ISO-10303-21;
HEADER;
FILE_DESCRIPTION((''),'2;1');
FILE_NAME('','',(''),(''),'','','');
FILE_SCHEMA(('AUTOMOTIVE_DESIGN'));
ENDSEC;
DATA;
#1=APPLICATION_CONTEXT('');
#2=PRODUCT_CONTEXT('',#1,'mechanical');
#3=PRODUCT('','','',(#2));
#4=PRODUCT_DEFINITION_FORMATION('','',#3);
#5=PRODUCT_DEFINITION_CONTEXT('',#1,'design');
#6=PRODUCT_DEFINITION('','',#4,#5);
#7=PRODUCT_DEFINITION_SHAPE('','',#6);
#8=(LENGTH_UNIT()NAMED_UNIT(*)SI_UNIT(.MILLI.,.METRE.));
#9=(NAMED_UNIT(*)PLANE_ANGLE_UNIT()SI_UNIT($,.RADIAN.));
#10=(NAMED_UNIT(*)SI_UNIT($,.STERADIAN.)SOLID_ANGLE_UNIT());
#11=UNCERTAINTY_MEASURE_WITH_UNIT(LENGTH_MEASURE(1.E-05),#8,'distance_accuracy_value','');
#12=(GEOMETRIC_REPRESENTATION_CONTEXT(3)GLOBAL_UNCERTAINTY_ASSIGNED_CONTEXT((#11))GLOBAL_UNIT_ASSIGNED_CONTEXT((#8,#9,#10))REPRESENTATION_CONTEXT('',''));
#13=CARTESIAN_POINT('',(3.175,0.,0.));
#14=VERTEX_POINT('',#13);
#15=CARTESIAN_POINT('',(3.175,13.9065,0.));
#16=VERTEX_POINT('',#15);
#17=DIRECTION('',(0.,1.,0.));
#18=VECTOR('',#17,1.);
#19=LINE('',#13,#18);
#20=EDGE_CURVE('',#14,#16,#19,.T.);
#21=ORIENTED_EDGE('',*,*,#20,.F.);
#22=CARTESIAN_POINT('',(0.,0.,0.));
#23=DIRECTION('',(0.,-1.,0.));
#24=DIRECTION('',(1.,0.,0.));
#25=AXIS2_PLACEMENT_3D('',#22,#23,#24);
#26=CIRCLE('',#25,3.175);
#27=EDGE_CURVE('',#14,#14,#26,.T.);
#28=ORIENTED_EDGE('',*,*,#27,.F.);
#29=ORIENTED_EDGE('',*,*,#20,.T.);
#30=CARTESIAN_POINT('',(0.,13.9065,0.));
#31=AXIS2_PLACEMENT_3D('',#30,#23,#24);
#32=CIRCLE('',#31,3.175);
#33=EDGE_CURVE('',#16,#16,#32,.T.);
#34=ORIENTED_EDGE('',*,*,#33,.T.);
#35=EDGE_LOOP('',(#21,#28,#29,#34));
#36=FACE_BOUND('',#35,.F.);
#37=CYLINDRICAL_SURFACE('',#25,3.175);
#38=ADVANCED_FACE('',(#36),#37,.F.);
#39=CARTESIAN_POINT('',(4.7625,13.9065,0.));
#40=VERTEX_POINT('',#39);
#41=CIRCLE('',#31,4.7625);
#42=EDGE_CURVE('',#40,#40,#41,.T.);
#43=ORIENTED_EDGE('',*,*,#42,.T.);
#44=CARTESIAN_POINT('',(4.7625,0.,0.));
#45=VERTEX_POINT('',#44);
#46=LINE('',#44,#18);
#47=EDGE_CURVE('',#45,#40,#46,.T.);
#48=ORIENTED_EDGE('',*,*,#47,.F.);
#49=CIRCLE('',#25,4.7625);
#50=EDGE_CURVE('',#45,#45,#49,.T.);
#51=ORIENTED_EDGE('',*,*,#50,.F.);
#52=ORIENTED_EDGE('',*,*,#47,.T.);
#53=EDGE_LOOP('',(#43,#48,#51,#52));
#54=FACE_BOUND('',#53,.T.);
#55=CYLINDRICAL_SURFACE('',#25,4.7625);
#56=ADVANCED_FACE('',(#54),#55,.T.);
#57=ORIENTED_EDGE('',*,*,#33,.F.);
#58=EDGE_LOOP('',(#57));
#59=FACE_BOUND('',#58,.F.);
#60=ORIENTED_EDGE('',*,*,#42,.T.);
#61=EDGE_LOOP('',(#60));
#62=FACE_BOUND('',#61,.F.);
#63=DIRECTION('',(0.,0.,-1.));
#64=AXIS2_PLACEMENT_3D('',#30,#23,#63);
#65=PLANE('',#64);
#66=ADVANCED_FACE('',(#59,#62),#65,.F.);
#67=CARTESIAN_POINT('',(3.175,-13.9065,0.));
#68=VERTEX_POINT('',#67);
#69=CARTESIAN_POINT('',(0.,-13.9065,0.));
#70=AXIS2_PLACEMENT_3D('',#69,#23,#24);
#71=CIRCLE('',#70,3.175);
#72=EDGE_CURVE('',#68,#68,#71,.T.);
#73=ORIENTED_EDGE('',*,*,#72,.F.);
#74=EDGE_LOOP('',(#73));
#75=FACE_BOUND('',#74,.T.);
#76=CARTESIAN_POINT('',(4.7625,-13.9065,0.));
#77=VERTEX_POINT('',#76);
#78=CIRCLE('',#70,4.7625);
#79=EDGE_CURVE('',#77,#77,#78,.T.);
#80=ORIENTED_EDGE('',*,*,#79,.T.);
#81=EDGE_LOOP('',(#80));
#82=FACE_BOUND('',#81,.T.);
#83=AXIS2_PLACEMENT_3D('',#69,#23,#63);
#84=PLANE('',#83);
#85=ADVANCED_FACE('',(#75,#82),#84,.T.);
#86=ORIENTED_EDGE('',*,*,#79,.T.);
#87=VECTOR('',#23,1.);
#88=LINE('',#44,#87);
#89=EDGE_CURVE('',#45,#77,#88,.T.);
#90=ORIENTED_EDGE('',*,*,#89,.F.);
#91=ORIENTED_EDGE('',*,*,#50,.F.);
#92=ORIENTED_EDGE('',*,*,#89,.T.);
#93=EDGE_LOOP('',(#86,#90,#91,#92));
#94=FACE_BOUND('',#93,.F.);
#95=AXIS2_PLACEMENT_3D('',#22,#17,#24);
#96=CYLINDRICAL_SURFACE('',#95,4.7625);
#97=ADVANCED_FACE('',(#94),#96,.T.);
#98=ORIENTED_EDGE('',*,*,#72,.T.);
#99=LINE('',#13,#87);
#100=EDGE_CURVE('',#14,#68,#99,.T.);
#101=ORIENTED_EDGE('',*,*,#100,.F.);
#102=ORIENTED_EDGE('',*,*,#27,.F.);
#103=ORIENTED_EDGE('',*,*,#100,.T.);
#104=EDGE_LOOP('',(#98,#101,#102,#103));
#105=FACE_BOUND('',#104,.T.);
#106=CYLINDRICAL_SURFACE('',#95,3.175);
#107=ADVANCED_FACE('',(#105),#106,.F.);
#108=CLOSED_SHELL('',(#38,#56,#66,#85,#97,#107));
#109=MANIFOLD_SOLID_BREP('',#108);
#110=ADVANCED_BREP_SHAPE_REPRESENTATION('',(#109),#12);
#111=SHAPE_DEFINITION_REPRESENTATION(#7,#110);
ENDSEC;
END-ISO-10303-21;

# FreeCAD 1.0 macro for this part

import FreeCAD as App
import Part
import Sketcher
Q = App.Units.Quantity

doc = App.newDocument("Part")
params = doc.addObject("Spreadsheet::Sheet", "Params")
for row, (alias, value) in enumerate([
    ("sketch1_diameter", "0.25 in"),
    ("sketch1_diameter2", "0.375 in"),
    ("pad1_length", "1.095 in"),
], start=1):
    params.set(f"A{row}", alias)
    params.set(f"B{row}", "=" + value)
    params.setAlias(f"B{row}", alias)

body = doc.addObject("PartDesign::Body", "Body")

# Sketch on XZ plane
sketch1 = body.newObject("Sketcher::SketchObject", "Sketch")
sketch1.AttachmentSupport = (doc.getObject("XZ_Plane"), [""])
sketch1.MapMode = "FlatFace"
sketch1.addGeometry(Part.Circle(App.Vector(0, 0, 0), App.Vector(0, 0, 1), 4.7625), False)
sketch1.addGeometry(Part.Circle(App.Vector(0, 0, 0), App.Vector(0, 0, 1), 3.175), False)
sketch1.addConstraint(Sketcher.Constraint("Coincident", 0, 3, -1, 1))
sketch1.addConstraint(Sketcher.Constraint("Coincident", 1, 3, -1, 1))
sketch1.addConstraint(Sketcher.Constraint("Diameter", 1, Q("0.25 in")))
sketch1.addConstraint(Sketcher.Constraint("Diameter", 0, Q("0.375 in")))
sketch1.setExpression("Constraints[2]", "Params.sketch1_diameter")
sketch1.setExpression("Constraints[3]", "Params.sketch1_diameter2")
pad1 = body.newObject("PartDesign::Pad", "Pad")
pad1.Profile = sketch1
pad1.setExpression("Length", "Params.pad1_length")
pad1.Midplane = True

doc.recompute()
